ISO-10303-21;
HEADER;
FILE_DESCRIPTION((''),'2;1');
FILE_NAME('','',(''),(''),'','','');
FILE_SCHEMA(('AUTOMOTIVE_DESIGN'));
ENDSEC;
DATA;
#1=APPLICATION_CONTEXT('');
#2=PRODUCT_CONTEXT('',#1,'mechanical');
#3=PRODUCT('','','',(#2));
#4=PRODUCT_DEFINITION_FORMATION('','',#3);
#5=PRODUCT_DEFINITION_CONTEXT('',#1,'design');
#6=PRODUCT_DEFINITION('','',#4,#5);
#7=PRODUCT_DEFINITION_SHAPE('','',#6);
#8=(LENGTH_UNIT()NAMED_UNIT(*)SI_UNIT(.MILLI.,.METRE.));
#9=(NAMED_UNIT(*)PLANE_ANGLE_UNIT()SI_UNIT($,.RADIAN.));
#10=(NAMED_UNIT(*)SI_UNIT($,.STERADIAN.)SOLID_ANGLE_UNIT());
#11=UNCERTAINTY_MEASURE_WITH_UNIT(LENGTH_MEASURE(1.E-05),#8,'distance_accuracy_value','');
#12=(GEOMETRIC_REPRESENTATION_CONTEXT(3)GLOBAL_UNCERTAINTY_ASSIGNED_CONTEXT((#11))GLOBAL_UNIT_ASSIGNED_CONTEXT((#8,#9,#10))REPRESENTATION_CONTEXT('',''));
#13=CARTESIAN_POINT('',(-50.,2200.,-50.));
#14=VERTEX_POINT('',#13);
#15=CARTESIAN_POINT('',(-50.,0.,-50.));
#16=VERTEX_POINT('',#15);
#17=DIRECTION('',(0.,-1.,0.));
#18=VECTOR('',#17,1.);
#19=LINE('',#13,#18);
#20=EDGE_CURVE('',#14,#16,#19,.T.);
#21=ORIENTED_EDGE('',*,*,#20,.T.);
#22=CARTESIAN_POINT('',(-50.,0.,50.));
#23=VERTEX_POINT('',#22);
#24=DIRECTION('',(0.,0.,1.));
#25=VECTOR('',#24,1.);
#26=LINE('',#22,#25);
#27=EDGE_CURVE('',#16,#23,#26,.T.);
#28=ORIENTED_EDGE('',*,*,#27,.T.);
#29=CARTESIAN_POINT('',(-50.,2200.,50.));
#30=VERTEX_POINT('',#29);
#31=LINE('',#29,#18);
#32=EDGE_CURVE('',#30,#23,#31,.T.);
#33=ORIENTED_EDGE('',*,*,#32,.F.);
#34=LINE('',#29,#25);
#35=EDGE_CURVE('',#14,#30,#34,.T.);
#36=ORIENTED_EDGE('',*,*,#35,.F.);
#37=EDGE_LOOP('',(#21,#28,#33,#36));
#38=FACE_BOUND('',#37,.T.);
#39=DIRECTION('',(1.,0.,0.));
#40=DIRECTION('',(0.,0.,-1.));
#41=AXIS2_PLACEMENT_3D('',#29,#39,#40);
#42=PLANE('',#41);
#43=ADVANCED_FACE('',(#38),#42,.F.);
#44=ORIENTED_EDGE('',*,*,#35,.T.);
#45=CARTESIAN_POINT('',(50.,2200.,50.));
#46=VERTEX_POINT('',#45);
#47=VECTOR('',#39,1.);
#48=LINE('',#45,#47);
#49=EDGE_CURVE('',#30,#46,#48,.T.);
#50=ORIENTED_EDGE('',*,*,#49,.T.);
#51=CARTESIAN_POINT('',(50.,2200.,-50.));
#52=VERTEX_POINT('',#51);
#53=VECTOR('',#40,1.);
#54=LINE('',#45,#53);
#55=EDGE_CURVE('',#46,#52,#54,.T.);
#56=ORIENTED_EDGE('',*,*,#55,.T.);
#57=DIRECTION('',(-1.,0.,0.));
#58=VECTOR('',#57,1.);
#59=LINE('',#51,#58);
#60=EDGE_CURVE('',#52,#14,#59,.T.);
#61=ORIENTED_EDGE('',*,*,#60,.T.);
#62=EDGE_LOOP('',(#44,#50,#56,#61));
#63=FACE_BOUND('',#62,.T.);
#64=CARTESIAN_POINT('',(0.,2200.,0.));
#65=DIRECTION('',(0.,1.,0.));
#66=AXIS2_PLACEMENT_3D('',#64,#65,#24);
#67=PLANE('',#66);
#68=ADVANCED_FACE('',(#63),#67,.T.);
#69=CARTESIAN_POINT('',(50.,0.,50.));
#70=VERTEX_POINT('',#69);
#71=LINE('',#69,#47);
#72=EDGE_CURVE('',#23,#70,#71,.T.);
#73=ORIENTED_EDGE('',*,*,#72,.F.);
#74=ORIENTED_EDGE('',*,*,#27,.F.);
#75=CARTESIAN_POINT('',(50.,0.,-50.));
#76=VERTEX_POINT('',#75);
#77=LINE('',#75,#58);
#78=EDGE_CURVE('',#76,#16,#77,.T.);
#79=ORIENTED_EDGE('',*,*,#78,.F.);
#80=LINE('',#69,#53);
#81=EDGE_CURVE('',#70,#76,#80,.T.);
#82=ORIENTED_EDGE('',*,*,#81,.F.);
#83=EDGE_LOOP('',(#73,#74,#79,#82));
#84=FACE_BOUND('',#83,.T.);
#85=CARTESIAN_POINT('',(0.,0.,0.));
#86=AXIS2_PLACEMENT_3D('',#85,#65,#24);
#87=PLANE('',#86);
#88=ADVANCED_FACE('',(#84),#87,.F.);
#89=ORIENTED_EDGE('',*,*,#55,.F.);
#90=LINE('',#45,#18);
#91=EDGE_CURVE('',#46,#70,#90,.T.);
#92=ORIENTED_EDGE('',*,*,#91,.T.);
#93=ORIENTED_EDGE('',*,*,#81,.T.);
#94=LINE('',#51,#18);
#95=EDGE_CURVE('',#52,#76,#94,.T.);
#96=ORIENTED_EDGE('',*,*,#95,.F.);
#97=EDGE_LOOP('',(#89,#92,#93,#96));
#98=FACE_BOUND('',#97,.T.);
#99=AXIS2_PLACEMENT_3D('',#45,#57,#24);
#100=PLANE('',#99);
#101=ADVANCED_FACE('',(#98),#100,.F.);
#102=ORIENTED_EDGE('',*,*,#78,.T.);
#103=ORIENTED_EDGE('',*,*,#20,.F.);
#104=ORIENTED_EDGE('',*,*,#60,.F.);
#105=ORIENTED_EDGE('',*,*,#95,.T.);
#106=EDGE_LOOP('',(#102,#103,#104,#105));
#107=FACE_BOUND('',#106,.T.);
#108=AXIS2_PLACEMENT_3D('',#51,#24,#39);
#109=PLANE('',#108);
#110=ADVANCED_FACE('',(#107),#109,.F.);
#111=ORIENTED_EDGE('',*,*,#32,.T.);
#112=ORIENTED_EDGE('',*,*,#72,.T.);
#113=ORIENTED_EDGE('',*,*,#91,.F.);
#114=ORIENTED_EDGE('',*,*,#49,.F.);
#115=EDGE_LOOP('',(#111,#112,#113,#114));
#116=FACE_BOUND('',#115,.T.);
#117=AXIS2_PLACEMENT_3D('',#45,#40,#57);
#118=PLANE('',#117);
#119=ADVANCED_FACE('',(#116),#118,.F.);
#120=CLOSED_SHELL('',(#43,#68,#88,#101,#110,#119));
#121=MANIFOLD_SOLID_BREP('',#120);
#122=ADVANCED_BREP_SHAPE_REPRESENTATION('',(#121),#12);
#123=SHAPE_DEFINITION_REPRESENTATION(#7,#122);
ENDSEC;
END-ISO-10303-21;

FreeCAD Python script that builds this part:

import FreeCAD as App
import Part
import Sketcher

doc = App.newDocument("Part")
body = doc.addObject("PartDesign::Body", "Body")

sketch1 = body.newObject("Sketcher::SketchObject", "Sketch")
sketch1.AttachmentSupport = (doc.getObject("XZ_Plane"), [""])
sketch1.MapMode = "FlatFace"
sketch1.addGeometry([
    Part.LineSegment(App.Vector(-50, -50, 0), App.Vector(-50, 50, 0)),
    Part.LineSegment(App.Vector(-50, 50, 0), App.Vector(50, 50, 0)),
    Part.LineSegment(App.Vector(50, 50, 0), App.Vector(50, -50, 0)),
    Part.LineSegment(App.Vector(50, -50, 0), App.Vector(-50, -50, 0)),
], False)
sketch1.addConstraint([
    Sketcher.Constraint("Coincident", 0, 2, 1, 1),
    Sketcher.Constraint("Coincident", 1, 2, 2, 1),
    Sketcher.Constraint("Coincident", 2, 2, 3, 1),
    Sketcher.Constraint("Coincident", 3, 2, 0, 1),
    Sketcher.Constraint("Vertical", 0),
    Sketcher.Constraint("Horizontal", 1),
    Sketcher.Constraint("Vertical", 2),
    Sketcher.Constraint("Horizontal", 3),
    Sketcher.Constraint("Symmetric", 0, 2, 2, 2, -1, 1),
    Sketcher.Constraint("Equal", 3, 0),
    Sketcher.Constraint("DistanceX", 1, 1, 1, 2, 100.0),
])
pad1 = body.newObject("PartDesign::Pad", "Pad")
pad1.Profile = sketch1
pad1.Length = 2200
pad1.Reversed = True

doc.recompute()
